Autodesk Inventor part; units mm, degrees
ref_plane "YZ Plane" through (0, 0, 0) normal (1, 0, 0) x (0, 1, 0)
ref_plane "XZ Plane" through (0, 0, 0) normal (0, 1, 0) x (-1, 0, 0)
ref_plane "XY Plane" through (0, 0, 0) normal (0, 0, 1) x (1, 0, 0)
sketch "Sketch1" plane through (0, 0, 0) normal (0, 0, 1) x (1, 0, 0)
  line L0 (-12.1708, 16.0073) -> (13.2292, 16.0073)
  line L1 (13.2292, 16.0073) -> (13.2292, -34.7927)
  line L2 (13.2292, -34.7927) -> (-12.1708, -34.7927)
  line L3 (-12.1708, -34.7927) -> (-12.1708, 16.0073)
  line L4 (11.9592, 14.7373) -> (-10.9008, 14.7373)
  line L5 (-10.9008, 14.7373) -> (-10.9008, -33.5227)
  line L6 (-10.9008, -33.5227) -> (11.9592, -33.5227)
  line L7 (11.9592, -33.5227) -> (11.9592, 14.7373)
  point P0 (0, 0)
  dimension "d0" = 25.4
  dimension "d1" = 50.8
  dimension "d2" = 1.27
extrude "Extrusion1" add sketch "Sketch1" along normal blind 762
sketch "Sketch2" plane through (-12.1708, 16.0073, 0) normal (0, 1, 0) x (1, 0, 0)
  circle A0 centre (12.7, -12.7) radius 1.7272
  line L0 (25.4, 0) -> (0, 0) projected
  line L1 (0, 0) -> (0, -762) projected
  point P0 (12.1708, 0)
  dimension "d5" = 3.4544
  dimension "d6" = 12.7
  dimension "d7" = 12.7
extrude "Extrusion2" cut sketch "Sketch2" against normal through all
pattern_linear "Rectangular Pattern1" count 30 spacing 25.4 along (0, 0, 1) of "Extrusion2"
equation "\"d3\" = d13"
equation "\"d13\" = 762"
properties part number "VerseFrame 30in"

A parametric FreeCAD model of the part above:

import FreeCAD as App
import Part
import Sketcher
from FreeCAD import Vector
Q = App.Units.Quantity


def add_polygon(sketch, points):
    """Adds a closed chain of lines whose ends are joined by coincident constraints."""
    first, n = sketch.GeometryCount, len(points)
    for a, b in zip(points, points[1:] + points[:1]):
        sketch.addGeometry(Part.LineSegment(App.Vector(*a, 0), App.Vector(*b, 0)), False)
    for i in range(n):
        sketch.addConstraint(Sketcher.Constraint("Coincident", first + i, 2, first + (i + 1) % n, 1))

doc = App.newDocument("Part")
body = doc.addObject("PartDesign::Body", "Body")

# Sketch on XY plane
sketch1 = doc.addObject("Sketcher::SketchObject", "Sketch")
body.addObject(sketch1)
sketch1.AttachmentSupport = (doc.XY_Plane, [""])
sketch1.MapMode = "FlatFace"
add_polygon(sketch1, [(13.2292, 16.0073), (-12.1708, 16.0073), (-12.1708, -34.7927), (13.2292, -34.7927)])  # lines 0-3
add_polygon(sketch1, [(-10.9008, 14.7373), (11.9592, 14.7373), (11.9592, -33.5227), (-10.9008, -33.5227)])  # lines 4-7
sketch1.addConstraint(Sketcher.Constraint("Horizontal", 0))
sketch1.addConstraint(Sketcher.Constraint("Vertical", 1))
sketch1.addConstraint(Sketcher.Constraint("Horizontal", 2))
sketch1.addConstraint(Sketcher.Constraint("Vertical", 3))
sketch1.addConstraint(Sketcher.Constraint("Horizontal", 4))
sketch1.addConstraint(Sketcher.Constraint("Vertical", 5))
sketch1.addConstraint(Sketcher.Constraint("Horizontal", 6))
sketch1.addConstraint(Sketcher.Constraint("Vertical", 7))
sketch1.addConstraint(Sketcher.Constraint("DistanceX", 0, 2, 0, 1, Q("1 in")))
sketch1.addConstraint(Sketcher.Constraint("DistanceY", 1, 2, 1, 1, Q("2 in")))
sketch1.addConstraint(Sketcher.Constraint("DistanceX", 4, 2, 3, 2, Q("0.05 in")))
sketch1.addConstraint(Sketcher.Constraint("DistanceY", 4, 2, 3, 2, Q("0.05 in")))
sketch1.addConstraint(Sketcher.Constraint("DistanceY", 2, 2, 5, 2, Q("0.05 in")))
sketch1.addConstraint(Sketcher.Constraint("DistanceX", 1, 2, 6, 2, Q("0.05 in")))
sketch1.addConstraint(Sketcher.Constraint("DistanceY", -1, 1, 0, 2, Q("0.6302 in")))
sketch1.addConstraint(Sketcher.Constraint("DistanceX", 0, 2, -1, 1, Q("12.1708 mm")))
pad1 = doc.addObject("PartDesign::Pad", "Pad")
body.addObject(pad1)
pad1.Profile = sketch1
pad1.Length = Q("30 in")

# Sketch on XZ plane
sketch2 = doc.addObject("Sketcher::SketchObject", "Sketch001")
body.addObject(sketch2)
sketch2.AttachmentSupport = (doc.XZ_Plane, [""])
sketch2.MapMode = "FlatFace"
sketch2.AttachmentOffset = App.Placement(Vector(0, 0, -0.6302087 * 25.4), App.Rotation())
sketch2.addGeometry(Part.Circle(Vector(0.5292, 12.7, 0), Vector(0, 0, 1), 1.7272), False)
sketch2.addConstraint(Sketcher.Constraint("Diameter", 0, Q("0.136 in")))
sketch2.addConstraint(Sketcher.Constraint("DistanceY", -1, 1, 0, 3, Q("0.5 in")))
sketch2.addConstraint(Sketcher.Constraint("DistanceX", -1, 1, 0, 3, Q("0.5292 mm")))
pocket1 = doc.addObject("PartDesign::Pocket", "Pocket")
body.addObject(pocket1)
pocket1.Profile = sketch2
pocket1.Type = "ThroughAll"
pocket1.Reversed = True
doc.recompute()

linearpattern = doc.addObject("PartDesign::LinearPattern", "LinearPattern")
body.addObject(linearpattern)
linearpattern.Originals = [pocket1]
linearpattern.Direction = (doc.Z_Axis, [""])
linearpattern.Mode = "offset"
linearpattern.Offset = Q("1 in")
linearpattern.Occurrences = 30
body.Tip = linearpattern

doc.recompute()
